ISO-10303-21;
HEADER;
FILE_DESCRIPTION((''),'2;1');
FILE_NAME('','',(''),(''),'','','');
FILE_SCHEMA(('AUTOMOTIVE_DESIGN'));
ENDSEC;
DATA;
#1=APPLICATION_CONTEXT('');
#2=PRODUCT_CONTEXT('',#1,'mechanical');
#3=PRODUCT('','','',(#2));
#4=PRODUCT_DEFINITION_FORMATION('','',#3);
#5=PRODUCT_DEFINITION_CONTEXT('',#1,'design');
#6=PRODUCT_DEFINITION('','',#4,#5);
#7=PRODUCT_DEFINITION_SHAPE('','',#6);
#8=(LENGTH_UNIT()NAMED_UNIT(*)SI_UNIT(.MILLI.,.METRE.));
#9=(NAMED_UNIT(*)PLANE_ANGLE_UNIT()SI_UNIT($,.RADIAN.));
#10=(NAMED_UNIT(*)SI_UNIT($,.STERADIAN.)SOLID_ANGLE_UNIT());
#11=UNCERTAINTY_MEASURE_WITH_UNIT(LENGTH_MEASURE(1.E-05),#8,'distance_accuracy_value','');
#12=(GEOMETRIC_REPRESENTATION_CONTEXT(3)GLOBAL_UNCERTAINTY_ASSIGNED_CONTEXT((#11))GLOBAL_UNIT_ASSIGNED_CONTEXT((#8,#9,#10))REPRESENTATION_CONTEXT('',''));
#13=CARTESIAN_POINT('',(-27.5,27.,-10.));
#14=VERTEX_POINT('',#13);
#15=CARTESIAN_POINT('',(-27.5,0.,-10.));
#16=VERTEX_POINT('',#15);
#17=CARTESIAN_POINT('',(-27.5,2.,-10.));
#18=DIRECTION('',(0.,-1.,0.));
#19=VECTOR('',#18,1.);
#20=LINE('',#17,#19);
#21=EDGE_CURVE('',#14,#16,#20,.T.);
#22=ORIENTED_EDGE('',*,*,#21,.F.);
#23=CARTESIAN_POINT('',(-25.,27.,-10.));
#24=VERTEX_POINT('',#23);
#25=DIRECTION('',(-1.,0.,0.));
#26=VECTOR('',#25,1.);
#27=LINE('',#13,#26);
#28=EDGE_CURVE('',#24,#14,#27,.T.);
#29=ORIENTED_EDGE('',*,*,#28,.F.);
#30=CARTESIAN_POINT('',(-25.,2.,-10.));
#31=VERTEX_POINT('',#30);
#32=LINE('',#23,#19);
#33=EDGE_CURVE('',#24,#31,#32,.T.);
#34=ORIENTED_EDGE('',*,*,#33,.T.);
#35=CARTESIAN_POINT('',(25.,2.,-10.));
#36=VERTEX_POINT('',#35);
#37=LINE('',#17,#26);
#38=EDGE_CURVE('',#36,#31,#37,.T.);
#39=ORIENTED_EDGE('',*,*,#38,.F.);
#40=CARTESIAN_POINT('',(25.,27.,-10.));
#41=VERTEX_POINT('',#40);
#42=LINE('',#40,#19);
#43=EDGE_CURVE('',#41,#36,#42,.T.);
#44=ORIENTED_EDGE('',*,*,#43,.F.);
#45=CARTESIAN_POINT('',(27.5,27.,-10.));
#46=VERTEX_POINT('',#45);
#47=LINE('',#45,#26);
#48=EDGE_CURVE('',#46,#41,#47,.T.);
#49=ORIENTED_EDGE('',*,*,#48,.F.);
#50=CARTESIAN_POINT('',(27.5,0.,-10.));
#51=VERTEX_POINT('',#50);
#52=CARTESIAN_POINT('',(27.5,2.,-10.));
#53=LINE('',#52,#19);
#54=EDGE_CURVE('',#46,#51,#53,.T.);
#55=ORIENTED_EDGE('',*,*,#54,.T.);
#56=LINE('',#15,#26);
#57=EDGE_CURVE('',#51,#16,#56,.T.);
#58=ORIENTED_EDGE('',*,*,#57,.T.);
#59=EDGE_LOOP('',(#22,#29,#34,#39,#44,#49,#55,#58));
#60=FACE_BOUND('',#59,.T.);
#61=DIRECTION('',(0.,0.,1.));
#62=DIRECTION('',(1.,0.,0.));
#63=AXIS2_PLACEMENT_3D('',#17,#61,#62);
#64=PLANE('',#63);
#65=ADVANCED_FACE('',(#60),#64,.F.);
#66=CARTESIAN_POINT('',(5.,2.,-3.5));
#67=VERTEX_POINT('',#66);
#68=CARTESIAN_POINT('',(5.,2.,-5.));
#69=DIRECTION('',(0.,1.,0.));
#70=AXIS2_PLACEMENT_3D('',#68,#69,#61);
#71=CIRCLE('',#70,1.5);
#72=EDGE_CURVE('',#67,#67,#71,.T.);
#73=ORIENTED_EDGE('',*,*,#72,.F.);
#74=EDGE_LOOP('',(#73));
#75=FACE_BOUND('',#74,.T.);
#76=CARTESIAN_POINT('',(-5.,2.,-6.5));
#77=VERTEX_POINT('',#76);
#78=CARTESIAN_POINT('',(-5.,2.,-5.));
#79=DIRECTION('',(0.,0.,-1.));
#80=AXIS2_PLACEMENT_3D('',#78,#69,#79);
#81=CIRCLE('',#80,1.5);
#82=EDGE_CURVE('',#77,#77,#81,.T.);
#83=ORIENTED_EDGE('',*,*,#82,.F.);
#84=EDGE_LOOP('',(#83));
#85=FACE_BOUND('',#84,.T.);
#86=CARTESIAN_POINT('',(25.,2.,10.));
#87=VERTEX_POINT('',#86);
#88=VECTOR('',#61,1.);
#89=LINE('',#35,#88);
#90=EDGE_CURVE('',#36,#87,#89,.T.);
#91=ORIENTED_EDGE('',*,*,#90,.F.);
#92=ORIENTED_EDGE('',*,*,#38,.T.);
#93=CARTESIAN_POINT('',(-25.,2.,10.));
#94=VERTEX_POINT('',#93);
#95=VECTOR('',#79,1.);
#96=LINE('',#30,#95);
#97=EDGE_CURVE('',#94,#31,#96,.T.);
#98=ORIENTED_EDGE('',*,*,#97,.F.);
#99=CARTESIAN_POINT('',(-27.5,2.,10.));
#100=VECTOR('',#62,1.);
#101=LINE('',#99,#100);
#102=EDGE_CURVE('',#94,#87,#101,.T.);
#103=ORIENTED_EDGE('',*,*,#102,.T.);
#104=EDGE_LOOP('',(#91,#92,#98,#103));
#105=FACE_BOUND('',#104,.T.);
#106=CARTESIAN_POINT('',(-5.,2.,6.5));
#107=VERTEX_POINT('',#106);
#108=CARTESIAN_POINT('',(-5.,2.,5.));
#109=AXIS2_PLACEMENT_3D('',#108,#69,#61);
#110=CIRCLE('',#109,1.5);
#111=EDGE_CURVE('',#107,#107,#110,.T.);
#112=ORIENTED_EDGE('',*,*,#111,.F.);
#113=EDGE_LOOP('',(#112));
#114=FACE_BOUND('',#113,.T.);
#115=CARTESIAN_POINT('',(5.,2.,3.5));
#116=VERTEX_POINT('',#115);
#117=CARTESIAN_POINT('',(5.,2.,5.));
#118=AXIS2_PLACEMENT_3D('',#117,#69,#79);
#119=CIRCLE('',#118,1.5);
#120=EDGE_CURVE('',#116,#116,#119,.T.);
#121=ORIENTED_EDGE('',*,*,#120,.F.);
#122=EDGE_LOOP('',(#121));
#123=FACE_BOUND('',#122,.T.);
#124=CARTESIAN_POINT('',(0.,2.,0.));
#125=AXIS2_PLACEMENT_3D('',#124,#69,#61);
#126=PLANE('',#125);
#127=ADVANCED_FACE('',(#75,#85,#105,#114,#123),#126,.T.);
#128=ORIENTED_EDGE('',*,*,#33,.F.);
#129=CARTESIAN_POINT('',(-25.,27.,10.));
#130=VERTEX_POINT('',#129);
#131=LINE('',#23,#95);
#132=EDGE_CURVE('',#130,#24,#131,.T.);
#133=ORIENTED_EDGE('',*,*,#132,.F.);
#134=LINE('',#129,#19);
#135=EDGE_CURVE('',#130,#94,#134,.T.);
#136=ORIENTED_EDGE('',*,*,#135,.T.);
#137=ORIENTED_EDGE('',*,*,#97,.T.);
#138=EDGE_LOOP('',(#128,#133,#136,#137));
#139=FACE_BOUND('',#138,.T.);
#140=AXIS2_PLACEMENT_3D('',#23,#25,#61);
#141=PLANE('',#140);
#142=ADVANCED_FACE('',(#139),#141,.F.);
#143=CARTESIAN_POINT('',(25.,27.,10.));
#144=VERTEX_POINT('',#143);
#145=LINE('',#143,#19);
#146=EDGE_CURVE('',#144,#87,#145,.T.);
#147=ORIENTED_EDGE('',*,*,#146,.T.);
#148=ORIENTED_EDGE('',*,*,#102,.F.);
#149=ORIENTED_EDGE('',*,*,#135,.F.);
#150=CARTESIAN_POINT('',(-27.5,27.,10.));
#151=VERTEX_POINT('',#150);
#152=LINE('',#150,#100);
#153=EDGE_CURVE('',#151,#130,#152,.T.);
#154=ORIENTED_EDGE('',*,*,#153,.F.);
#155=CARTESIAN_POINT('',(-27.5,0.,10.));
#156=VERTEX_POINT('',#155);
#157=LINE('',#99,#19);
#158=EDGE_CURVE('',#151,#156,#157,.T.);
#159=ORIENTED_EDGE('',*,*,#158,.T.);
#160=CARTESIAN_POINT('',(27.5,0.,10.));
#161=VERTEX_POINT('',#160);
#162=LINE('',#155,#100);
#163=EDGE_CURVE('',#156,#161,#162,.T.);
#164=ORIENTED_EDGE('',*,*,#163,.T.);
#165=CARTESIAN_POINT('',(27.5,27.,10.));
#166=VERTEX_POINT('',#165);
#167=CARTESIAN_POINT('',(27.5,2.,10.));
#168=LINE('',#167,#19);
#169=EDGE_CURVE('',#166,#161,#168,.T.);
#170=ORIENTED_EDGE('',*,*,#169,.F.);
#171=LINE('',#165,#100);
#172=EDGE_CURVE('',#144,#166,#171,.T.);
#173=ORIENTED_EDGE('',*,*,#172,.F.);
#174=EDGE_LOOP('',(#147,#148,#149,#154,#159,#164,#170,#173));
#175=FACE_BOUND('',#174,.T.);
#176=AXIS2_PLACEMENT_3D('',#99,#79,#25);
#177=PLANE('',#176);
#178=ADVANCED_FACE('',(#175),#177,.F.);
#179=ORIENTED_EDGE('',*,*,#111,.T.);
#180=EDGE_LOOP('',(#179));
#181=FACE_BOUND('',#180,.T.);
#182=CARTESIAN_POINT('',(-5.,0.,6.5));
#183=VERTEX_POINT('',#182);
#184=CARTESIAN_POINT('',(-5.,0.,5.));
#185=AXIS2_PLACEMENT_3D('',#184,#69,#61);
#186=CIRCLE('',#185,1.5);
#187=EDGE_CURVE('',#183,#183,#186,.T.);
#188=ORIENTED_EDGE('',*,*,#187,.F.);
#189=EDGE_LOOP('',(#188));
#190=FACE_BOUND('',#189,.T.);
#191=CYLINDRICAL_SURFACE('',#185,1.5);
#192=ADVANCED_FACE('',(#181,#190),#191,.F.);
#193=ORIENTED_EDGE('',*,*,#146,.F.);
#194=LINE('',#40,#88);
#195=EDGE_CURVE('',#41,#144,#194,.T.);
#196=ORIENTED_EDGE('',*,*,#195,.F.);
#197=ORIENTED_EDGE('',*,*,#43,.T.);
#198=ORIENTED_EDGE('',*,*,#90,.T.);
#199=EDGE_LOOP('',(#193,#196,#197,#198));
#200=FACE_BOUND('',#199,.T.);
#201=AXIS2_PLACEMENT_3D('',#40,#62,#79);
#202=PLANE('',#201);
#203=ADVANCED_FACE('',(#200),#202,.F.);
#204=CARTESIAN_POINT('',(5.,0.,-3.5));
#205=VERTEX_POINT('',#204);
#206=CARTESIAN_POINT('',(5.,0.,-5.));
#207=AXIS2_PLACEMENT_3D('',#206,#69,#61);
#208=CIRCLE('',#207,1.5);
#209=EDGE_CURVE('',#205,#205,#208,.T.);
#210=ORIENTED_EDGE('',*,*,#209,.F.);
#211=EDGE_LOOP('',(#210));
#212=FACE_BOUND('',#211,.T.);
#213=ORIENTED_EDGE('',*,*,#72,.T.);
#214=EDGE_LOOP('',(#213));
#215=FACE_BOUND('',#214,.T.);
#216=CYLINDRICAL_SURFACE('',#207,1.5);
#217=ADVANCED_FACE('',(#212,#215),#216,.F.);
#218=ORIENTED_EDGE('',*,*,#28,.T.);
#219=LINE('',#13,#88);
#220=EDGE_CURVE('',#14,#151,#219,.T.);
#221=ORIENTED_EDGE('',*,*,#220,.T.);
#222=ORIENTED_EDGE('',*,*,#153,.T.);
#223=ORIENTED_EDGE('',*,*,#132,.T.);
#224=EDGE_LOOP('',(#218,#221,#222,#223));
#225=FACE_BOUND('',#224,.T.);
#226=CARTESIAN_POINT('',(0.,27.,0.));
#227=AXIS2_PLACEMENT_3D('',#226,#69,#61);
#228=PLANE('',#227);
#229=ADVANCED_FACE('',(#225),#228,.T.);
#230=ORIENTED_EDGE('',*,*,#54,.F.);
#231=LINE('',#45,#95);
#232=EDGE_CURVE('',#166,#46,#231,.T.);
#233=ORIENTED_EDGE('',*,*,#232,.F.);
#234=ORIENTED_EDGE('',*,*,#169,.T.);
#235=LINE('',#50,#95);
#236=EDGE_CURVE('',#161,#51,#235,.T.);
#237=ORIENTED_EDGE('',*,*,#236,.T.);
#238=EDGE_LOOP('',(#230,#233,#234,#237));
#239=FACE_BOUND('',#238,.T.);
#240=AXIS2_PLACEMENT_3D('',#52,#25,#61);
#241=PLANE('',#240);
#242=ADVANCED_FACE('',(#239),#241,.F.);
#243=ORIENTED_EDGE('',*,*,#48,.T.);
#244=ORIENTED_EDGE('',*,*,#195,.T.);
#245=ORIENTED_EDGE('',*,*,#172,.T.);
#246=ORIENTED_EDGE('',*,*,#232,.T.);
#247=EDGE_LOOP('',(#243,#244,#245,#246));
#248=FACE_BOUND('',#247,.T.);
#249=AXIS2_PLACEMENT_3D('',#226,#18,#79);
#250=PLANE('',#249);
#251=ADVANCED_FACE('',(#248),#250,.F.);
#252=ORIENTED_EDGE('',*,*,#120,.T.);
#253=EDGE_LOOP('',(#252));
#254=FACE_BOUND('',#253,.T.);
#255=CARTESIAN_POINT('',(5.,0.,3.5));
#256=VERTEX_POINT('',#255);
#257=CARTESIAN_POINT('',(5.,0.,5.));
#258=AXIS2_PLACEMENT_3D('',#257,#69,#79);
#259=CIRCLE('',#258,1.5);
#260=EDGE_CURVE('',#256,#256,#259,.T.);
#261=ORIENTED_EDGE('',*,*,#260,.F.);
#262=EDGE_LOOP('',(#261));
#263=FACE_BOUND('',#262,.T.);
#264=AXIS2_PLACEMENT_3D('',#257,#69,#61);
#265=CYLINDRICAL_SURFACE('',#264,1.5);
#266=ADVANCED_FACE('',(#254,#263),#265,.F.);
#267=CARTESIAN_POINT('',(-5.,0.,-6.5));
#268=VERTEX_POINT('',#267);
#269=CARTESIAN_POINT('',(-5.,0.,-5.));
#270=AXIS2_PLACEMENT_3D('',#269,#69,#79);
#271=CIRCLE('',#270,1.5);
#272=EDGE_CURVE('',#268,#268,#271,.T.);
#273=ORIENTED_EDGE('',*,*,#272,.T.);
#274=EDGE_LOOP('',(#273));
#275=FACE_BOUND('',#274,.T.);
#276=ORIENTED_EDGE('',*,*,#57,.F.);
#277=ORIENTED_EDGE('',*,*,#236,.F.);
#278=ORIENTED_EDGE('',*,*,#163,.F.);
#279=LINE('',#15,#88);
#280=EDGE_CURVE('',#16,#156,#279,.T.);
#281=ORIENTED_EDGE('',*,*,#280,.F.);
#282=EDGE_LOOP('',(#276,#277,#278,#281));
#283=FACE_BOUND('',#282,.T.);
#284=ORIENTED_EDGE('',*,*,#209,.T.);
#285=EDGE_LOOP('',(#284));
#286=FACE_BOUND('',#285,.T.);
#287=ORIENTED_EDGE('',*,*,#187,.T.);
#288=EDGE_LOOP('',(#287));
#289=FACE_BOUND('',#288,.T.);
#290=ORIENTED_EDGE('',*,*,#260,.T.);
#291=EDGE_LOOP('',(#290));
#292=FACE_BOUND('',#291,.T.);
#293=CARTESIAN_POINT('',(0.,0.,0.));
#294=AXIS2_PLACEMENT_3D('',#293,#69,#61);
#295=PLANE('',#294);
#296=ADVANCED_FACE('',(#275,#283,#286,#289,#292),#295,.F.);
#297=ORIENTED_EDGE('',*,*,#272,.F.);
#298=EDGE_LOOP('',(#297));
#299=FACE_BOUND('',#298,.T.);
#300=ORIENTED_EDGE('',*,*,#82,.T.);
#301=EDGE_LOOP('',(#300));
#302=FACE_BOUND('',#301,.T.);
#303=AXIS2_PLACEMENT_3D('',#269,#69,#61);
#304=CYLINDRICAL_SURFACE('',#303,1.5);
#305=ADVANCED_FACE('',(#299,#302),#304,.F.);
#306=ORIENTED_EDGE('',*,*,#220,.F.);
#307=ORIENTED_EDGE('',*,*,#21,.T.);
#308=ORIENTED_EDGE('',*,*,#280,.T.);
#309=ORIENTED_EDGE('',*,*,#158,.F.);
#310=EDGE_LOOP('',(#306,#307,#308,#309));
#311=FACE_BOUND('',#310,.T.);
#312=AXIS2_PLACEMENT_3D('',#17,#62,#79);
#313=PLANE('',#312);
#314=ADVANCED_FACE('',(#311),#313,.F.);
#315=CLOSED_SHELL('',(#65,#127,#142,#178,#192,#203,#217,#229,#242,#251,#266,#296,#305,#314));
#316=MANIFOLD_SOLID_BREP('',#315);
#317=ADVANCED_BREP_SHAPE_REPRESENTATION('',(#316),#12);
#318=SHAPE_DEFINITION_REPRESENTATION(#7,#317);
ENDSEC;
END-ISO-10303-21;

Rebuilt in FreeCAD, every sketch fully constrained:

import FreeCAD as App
import Part
import Sketcher


def add_polygon(sketch, points):
    """Adds a closed chain of lines whose ends are joined by coincident constraints."""
    first, n = sketch.GeometryCount, len(points)
    for a, b in zip(points, points[1:] + points[:1]):
        sketch.addGeometry(Part.LineSegment(App.Vector(*a, 0), App.Vector(*b, 0)), False)
    for i in range(n):
        sketch.addConstraint(Sketcher.Constraint("Coincident", first + i, 2, first + (i + 1) % n, 1))

doc = App.newDocument("Part")
body = doc.addObject("PartDesign::Body", "Body")

sketch1 = body.newObject("Sketcher::SketchObject", "Sketch")
sketch1.AttachmentSupport = (doc.getObject("XZ_Plane"), [""])
sketch1.MapMode = "FlatFace"
add_polygon(sketch1, [(-27.5, -10), (-27.5, 10), (27.5, 10), (27.5, -10)])
sketch1.addConstraint([
    Sketcher.Constraint("Vertical", 0),
    Sketcher.Constraint("Horizontal", 1),
    Sketcher.Constraint("Vertical", 2),
    Sketcher.Constraint("Horizontal", 3),
    Sketcher.Constraint("Symmetric", 0, 2, 2, 2, -1, 1),
    Sketcher.Constraint("DistanceX", 1, 1, 1, 2, 55.0),
    Sketcher.Constraint("DistanceY", 0, 1, 0, 2, 20.0),
])
pad1 = body.newObject("PartDesign::Pad", "Pad")
pad1.Profile = sketch1
pad1.Length = 2
pad1.Reversed = True

sketch2 = body.newObject("Sketcher::SketchObject", "Sketch001")
sketch2.AttachmentSupport = (doc.getObject("XZ_Plane"), [""])
sketch2.MapMode = "FlatFace"
sketch2.AttachmentOffset = App.Placement(App.Vector(0, 0, -2), App.Rotation())
add_polygon(sketch2, [(-27.5, -10), (-27.5, 10), (-25, 10), (-25, -10)])
add_polygon(sketch2, [(25, -10), (25, 10), (27.5, 10), (27.5, -10)])
sketch2.addConstraint([
    Sketcher.Constraint("Vertical", 0),
    Sketcher.Constraint("Horizontal", 1),
    Sketcher.Constraint("Vertical", 2),
    Sketcher.Constraint("Horizontal", 3),
    Sketcher.Constraint("Vertical", 4),
    Sketcher.Constraint("Horizontal", 5),
    Sketcher.Constraint("Vertical", 6),
    Sketcher.Constraint("Horizontal", 7),
    Sketcher.Constraint("Symmetric", 2, 2, 4, 2, -1, 1),
    Sketcher.Constraint("Symmetric", 0, 2, 6, 2, -1, 1),
    Sketcher.Constraint("Horizontal", 1, 2, 4, 2),
    Sketcher.Constraint("DistanceY", 0, 1, 0, 2, 20.0),
    Sketcher.Constraint("DistanceX", 1, 1, 1, 2, 2.5),
    Sketcher.Constraint("DistanceX", 1, 2, -1, 1, 25.0),
])
pad2 = body.newObject("PartDesign::Pad", "Pad001")
pad2.Profile = sketch2
pad2.Length = 25
pad2.Reversed = True

sketch3 = body.newObject("Sketcher::SketchObject", "Sketch002")
sketch3.AttachmentSupport = (doc.getObject("XZ_Plane"), [""])
sketch3.MapMode = "FlatFace"
sketch3.AttachmentOffset = App.Placement(App.Vector(0, 0, -2), App.Rotation())
sketch3.addGeometry([
    Part.Circle(App.Vector(5, -5, 0), App.Vector(0, 0, 1), 1.5),
    Part.Circle(App.Vector(-5, -5, 0), App.Vector(0, 0, 1), 1.5),
    Part.Circle(App.Vector(-5, 5, 0), App.Vector(0, 0, 1), 1.5),
    Part.Circle(App.Vector(5, 5, 0), App.Vector(0, 0, 1), 1.5),
], False)
sketch3.addConstraint([
    Sketcher.Constraint("Equal", 0, 1),
    Sketcher.Constraint("Equal", 1, 2),
    Sketcher.Constraint("Equal", 2, 3),
    Sketcher.Constraint("Symmetric", 0, 3, 2, 3, -1, 1),
    Sketcher.Constraint("Symmetric", 1, 3, 3, 3, -1, 1),
    Sketcher.Constraint("Symmetric", 0, 3, 1, 3, -2),
    Sketcher.Constraint("Diameter", 0, 3.0),
    Sketcher.Constraint("DistanceX", -1, 1, 0, 3, 5.0),
    Sketcher.Constraint("DistanceY", 0, 3, -1, 1, 5.0),
])
pocket1 = body.newObject("PartDesign::Pocket", "Pocket")
pocket1.Profile = sketch3
pocket1.Type = "ThroughAll"
pocket1.Reversed = True

doc.recompute()
